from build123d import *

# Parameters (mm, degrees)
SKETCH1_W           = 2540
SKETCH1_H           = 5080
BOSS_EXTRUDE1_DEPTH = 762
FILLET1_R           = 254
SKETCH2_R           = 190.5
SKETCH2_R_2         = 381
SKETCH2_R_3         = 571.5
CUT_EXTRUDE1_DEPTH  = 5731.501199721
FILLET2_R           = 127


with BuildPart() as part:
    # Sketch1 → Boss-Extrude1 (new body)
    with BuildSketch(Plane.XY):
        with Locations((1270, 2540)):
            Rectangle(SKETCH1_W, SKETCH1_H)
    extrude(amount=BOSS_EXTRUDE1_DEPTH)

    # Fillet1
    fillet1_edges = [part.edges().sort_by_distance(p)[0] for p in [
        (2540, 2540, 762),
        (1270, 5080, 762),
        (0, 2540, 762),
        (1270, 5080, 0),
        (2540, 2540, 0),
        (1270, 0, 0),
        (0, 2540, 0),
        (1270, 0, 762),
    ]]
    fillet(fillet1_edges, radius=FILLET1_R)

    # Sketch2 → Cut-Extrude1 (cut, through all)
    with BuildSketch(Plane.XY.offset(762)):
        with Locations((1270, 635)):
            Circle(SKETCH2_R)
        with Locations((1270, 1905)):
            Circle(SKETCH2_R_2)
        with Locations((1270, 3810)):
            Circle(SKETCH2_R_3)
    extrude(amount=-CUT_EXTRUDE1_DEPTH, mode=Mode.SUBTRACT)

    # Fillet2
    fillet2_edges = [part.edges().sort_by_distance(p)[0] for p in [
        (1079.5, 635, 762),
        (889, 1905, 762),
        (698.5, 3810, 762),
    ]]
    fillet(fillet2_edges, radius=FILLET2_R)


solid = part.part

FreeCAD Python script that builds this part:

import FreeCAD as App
import Part
import Sketcher

V = App.Vector
Q = App.Units.Quantity


def edges_at(feature, points):
    """Names of the edges that pass closest to the given points."""
    edges = feature.Shape.Edges
    near = lambda p: min(range(len(edges)), key=lambda i: edges[i].distToShape(Part.Vertex(*p))[0])
    return sorted({f"Edge{near(p) + 1}" for p in points})

doc = App.newDocument("Part")
body = doc.addObject("PartDesign::Body", "Body")

sketch1 = body.newObject("Sketcher::SketchObject", "Sketch")
sketch1.AttachmentSupport = (doc.getObject("XY_Plane"), [""])
sketch1.MapMode = "FlatFace"
sketch1.addGeometry(Part.LineSegment(V(0, 5080, 0), V(0, 0, 0)), False)
sketch1.addGeometry(Part.LineSegment(V(0, 0, 0), V(2540, 0, 0)), False)
sketch1.addGeometry(Part.LineSegment(V(2540, 0, 0), V(2540, 5080, 0)), False)
sketch1.addGeometry(Part.LineSegment(V(2540, 5080, 0), V(0, 5080, 0)), False)
sketch1.addConstraint(Sketcher.Constraint("Coincident", 0, 2, 1, 1))
sketch1.addConstraint(Sketcher.Constraint("Coincident", 1, 2, 2, 1))
sketch1.addConstraint(Sketcher.Constraint("Coincident", 2, 2, 3, 1))
sketch1.addConstraint(Sketcher.Constraint("Coincident", 3, 2, 0, 1))
sketch1.addConstraint(Sketcher.Constraint("Vertical", 0))
sketch1.addConstraint(Sketcher.Constraint("Horizontal", 1))
sketch1.addConstraint(Sketcher.Constraint("Vertical", 2))
sketch1.addConstraint(Sketcher.Constraint("Horizontal", 3))
sketch1.addConstraint(Sketcher.Constraint("Coincident", 0, 2, -1, 1))
sketch1.addConstraint(Sketcher.Constraint("DistanceX", 1, 1, 1, 2, Q("100 in")))
sketch1.addConstraint(Sketcher.Constraint("DistanceY", 0, 2, 0, 1, Q("200 in")))
pad1 = body.newObject("PartDesign::Pad", "Pad")
pad1.Profile = sketch1
pad1.Length = Q("30 in")
doc.recompute()

fillet = body.newObject("PartDesign::Fillet", "Fillet")
fillet.Base = (pad1, edges_at(pad1, [
    (2540, 2540, 762),
    (1270, 5080, 762),
    (0, 2540, 762),
    (1270, 5080, 0),
    (2540, 2540, 0),
    (1270, 0, 0),
    (0, 2540, 0),
    (1270, 0, 762),
]))
fillet.Radius = Q("10 in")

sketch2 = body.newObject("Sketcher::SketchObject", "Sketch001")
sketch2.AttachmentSupport = (doc.getObject("XY_Plane"), [""])
sketch2.MapMode = "FlatFace"
sketch2.AttachmentOffset = App.Placement(V(0, 0, 30 * 25.4), App.Rotation())
sketch2.addGeometry(Part.Circle(V(1270, 635, 0), V(0, 0, 1), 190), False)
sketch2.addGeometry(Part.Circle(V(1270, 1905, 0), V(0, 0, 1), 381), False)
sketch2.addGeometry(Part.Circle(V(1270, 3810, 0), V(0, 0, 1), 572), False)
sketch2.addConstraint(Sketcher.Constraint("Vertical", 0, 3, 1, 3))
sketch2.addConstraint(Sketcher.Constraint("Vertical", 1, 3, 2, 3))
sketch2.addConstraint(Sketcher.Constraint("Diameter", 0, Q("15 in")))
sketch2.addConstraint(Sketcher.Constraint("Diameter", 1, Q("30 in")))
sketch2.addConstraint(Sketcher.Constraint("Diameter", 2, Q("45 in")))
sketch2.addConstraint(Sketcher.Constraint("DistanceX", -1, 1, 0, 3, Q("50 in")))
sketch2.addConstraint(Sketcher.Constraint("DistanceY", -1, 1, 0, 3, Q("25 in")))
sketch2.addConstraint(Sketcher.Constraint("DistanceY", -1, 1, 1, 3, Q("75 in")))
sketch2.addConstraint(Sketcher.Constraint("DistanceY", -1, 1, 2, 3, Q("150 in")))
pocket1 = body.newObject("PartDesign::Pocket", "Pocket")
pocket1.Profile = sketch2
pocket1.Type = "ThroughAll"
doc.recompute()

fillet2 = body.newObject("PartDesign::Fillet", "Fillet001")
fillet2.Base = (pocket1, edges_at(pocket1, [(1079.5, 635, 762), (889, 1905, 762), (698.5, 3810, 762)]))
fillet2.Radius = Q("5 in")

doc.recompute()
